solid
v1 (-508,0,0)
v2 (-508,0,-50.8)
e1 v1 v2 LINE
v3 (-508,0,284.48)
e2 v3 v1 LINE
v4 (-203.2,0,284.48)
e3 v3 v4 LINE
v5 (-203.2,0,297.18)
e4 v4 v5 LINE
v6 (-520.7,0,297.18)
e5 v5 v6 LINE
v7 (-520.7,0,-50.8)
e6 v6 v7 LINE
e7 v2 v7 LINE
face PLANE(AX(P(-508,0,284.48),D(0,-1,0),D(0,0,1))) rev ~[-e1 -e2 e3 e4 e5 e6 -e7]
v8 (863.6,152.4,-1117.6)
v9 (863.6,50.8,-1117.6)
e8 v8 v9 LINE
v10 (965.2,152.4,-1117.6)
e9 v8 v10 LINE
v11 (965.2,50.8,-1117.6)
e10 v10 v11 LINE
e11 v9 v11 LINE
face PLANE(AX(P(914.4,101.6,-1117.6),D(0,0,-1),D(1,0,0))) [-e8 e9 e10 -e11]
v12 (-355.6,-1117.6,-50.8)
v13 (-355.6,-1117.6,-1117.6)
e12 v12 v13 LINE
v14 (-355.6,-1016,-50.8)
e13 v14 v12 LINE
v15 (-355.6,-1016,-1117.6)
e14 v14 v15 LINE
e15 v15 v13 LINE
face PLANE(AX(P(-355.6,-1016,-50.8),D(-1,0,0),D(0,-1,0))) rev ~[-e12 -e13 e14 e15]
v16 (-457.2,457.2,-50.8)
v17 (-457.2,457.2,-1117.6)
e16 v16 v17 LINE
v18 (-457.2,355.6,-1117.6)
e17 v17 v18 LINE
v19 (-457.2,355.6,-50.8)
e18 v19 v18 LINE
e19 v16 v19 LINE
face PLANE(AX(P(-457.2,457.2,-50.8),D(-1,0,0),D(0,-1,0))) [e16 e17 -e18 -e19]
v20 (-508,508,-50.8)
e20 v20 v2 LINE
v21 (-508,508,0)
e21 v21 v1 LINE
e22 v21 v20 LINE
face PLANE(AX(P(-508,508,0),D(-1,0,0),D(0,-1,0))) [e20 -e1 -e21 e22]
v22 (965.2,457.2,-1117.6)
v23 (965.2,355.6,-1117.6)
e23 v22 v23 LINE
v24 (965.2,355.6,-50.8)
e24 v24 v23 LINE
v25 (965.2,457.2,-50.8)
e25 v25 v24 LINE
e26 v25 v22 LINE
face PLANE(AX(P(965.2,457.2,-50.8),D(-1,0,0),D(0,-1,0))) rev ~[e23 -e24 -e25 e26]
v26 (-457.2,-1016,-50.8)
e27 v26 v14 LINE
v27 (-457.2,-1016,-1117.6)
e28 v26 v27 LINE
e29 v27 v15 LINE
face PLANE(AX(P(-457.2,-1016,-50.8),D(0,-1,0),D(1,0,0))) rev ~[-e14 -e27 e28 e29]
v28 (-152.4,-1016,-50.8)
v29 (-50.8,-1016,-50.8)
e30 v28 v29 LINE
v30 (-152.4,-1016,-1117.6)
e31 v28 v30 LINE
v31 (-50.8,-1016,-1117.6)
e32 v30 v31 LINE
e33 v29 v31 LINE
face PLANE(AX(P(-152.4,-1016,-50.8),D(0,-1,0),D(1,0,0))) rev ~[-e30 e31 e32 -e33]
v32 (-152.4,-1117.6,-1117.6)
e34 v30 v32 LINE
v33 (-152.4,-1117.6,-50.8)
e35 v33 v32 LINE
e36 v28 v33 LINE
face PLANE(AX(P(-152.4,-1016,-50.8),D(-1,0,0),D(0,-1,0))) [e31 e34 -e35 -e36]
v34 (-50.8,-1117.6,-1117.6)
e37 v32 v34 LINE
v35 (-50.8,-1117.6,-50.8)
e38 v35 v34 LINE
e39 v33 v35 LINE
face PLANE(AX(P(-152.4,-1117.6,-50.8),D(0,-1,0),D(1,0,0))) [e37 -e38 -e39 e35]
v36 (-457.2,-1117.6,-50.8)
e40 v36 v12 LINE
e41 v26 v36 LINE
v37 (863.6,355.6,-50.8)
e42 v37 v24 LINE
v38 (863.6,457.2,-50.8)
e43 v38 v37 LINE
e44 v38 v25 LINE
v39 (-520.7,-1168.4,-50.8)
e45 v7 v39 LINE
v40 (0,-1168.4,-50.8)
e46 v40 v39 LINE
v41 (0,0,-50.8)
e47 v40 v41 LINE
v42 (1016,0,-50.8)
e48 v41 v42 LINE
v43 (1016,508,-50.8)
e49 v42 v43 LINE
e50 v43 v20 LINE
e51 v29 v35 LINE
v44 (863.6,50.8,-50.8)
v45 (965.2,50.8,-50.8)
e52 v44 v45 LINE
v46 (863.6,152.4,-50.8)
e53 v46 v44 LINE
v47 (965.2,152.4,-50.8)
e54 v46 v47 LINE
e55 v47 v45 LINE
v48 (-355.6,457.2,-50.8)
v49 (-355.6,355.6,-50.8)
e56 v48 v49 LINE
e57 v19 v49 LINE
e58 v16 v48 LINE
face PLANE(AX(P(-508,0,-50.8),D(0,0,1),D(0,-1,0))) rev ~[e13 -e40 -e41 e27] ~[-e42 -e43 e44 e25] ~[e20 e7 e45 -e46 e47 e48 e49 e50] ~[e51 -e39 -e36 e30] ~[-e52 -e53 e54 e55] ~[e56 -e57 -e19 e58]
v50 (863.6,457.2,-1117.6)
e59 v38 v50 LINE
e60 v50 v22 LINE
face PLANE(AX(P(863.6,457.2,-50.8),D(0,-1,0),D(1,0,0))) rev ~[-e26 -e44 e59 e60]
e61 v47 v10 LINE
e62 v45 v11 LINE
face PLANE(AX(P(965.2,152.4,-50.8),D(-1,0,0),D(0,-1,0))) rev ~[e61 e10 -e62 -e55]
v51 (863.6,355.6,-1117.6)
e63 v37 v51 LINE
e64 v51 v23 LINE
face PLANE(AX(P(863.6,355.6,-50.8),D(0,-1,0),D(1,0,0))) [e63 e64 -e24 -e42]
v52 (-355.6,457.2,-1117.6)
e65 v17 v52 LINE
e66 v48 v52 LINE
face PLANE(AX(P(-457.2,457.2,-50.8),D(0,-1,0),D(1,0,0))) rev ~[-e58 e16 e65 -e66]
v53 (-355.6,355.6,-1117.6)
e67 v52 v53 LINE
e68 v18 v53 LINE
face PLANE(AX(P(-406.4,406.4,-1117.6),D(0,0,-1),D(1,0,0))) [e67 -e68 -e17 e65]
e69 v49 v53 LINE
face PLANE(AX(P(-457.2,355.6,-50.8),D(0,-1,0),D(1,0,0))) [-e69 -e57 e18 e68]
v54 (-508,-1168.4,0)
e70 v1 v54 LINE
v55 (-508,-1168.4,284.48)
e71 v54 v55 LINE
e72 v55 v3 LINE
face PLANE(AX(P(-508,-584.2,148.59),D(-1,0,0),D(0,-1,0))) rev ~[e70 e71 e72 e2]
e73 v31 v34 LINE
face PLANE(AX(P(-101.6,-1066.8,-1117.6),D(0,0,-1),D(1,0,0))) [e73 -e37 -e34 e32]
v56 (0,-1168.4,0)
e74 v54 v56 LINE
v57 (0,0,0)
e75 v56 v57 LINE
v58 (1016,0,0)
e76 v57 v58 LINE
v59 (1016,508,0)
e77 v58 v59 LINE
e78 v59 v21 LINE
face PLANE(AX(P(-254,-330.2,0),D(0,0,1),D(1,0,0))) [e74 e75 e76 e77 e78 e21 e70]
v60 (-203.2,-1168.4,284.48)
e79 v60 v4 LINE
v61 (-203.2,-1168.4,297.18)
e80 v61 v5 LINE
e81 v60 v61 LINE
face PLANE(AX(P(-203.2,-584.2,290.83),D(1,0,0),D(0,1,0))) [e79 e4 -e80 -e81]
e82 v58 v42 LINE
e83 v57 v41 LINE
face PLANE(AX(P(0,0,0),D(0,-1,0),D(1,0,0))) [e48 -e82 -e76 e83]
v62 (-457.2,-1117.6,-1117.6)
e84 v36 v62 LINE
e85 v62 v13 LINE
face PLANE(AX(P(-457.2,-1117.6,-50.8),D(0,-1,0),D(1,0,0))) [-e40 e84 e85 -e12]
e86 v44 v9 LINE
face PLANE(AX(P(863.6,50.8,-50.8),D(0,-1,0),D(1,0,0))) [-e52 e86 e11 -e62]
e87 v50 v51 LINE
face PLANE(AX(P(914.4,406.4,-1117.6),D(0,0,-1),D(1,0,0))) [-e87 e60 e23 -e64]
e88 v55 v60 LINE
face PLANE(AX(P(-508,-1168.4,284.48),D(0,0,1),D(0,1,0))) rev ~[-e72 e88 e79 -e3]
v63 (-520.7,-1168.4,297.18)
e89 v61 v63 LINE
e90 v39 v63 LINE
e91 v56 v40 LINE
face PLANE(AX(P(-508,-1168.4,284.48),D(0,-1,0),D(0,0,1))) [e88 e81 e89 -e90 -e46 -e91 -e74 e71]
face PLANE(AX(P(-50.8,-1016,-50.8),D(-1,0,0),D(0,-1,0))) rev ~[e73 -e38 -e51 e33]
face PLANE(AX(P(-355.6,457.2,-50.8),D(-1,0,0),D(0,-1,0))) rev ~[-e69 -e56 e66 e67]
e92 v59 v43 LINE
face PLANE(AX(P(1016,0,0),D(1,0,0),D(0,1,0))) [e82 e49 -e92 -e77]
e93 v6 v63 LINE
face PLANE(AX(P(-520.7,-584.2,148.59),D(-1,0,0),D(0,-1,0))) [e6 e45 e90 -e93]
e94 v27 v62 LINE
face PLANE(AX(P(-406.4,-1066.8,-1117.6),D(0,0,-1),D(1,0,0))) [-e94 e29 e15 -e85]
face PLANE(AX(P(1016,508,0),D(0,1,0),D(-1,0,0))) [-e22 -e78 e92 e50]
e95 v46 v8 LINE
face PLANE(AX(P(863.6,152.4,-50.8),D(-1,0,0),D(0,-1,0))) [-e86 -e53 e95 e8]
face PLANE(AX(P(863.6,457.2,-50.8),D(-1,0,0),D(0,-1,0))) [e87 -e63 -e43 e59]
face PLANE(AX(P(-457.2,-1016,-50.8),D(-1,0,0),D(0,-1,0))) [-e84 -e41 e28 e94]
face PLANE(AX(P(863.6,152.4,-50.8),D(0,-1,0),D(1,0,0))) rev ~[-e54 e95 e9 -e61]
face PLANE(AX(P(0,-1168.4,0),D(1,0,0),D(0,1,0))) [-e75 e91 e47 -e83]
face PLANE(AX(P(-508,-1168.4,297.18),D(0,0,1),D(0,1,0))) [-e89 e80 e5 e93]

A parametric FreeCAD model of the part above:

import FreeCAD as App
import Part
import Sketcher
Q = App.Units.Quantity


def add_polygon(sketch, points):
    """Adds a closed chain of lines whose ends are joined by coincident constraints."""
    first, n = sketch.GeometryCount, len(points)
    for a, b in zip(points, points[1:] + points[:1]):
        sketch.addGeometry(Part.LineSegment(App.Vector(*a, 0), App.Vector(*b, 0)), False)
    for i in range(n):
        sketch.addConstraint(Sketcher.Constraint("Coincident", first + i, 2, first + (i + 1) % n, 1))

doc = App.newDocument("Part")
body = doc.addObject("PartDesign::Body", "Body")

# Sketch on XY plane
sketch1 = body.newObject("Sketcher::SketchObject", "Sketch")
sketch1.AttachmentSupport = (doc.getObject("XY_Plane"), [""])
sketch1.MapMode = "FlatFace"
add_polygon(sketch1, [(-508, 508), (-508, -1168), (0, -1168), (0, 0), (1016, 0), (1016, 508)])  # lines 0-5
sketch1.addConstraint([
    Sketcher.Constraint("Vertical", 0),
    Sketcher.Constraint("Horizontal", 1),
    Sketcher.Constraint("Vertical", 2),
    Sketcher.Constraint("Horizontal", 3),
    Sketcher.Constraint("Vertical", 4),
    Sketcher.Constraint("Horizontal", 5),
    Sketcher.Constraint("Coincident", 2, 2, -1, 1),
    Sketcher.Constraint("Equal", 1, 4),
    Sketcher.Constraint("DistanceX", 1, 1, 1, 2, Q("20 in")),
    Sketcher.Constraint("DistanceX", 3, 1, 3, 2, Q("40 in")),
    Sketcher.Constraint("DistanceY", 0, 2, 0, 1, Q("66 in")),
])
pad1 = body.newObject("PartDesign::Pad", "Pad")
pad1.Profile = sketch1
pad1.Length = Q("2 in")
pad1.Reversed = True

# Sketch on XY plane
sketch2 = body.newObject("Sketcher::SketchObject", "Sketch001")
sketch2.AttachmentSupport = (doc.getObject("XY_Plane"), [""])
sketch2.MapMode = "FlatFace"
sketch2.AttachmentOffset = App.Placement(App.Vector(0, 0, -2 * 25.4), App.Rotation())
add_polygon(sketch2, [(-152, -1118), (-152, -1016), (-51, -1016), (-51, -1118)])  # lines 0-3
add_polygon(sketch2, [(-457, -1118), (-457, -1016), (-356, -1016), (-356, -1118)])  # lines 4-7
add_polygon(sketch2, [(-457, 356), (-457, 457), (-356, 457), (-356, 356)])  # lines 8-11
add_polygon(sketch2, [(864, 51), (864, 152), (965, 152), (965, 51)])  # lines 12-15
add_polygon(sketch2, [(864, 356), (864, 457), (965, 457), (965, 356)])  # lines 16-19
sketch2.addConstraint([
    Sketcher.Constraint("Vertical", 0),
    Sketcher.Constraint("Horizontal", 1),
    Sketcher.Constraint("Vertical", 2),
    Sketcher.Constraint("Horizontal", 3),
    Sketcher.Constraint("Vertical", 4),
    Sketcher.Constraint("Horizontal", 5),
    Sketcher.Constraint("Vertical", 6),
    Sketcher.Constraint("Horizontal", 7),
    Sketcher.Constraint("Vertical", 8),
    Sketcher.Constraint("Horizontal", 9),
    Sketcher.Constraint("Vertical", 10),
    Sketcher.Constraint("Horizontal", 11),
    Sketcher.Constraint("Vertical", 12),
    Sketcher.Constraint("Horizontal", 13),
    Sketcher.Constraint("Vertical", 14),
    Sketcher.Constraint("Horizontal", 15),
    Sketcher.Constraint("Vertical", 16),
    Sketcher.Constraint("Horizontal", 17),
    Sketcher.Constraint("Vertical", 18),
    Sketcher.Constraint("Horizontal", 19),
    Sketcher.Constraint("Horizontal", 1, 2, 4, 2),
    Sketcher.Constraint("Horizontal", 3, 2, 6, 2),
    Sketcher.Constraint("Horizontal", 9, 2, 16, 2),
    Sketcher.Constraint("Horizontal", 11, 2, 18, 2),
    Sketcher.Constraint("Vertical", 7, 2, 8, 2),
    Sketcher.Constraint("Vertical", 6, 2, 9, 2),
    Sketcher.Constraint("Vertical", 15, 2, 16, 2),
    Sketcher.Constraint("Vertical", 14, 2, 17, 2),
    Sketcher.Constraint("Equal", 3, 5),
    Sketcher.Constraint("Equal", 11, 13),
    Sketcher.Constraint("Equal", 19, 0),
    Sketcher.Constraint("Equal", 6, 8),
    Sketcher.Constraint("Equal", 10, 12),
    Sketcher.Constraint("DistanceX", 1, 1, 1, 2, Q("4 in")),
    Sketcher.Constraint("DistanceX", 0, 2, -1, 1, Q("6 in")),
    Sketcher.Constraint("DistanceY", 0, 2, -1, 1, Q("40 in")),
    Sketcher.Constraint("DistanceX", 4, 2, -1, 1, Q("18 in")),
    Sketcher.Constraint("DistanceY", -1, 1, 8, 2, Q("18 in")),
    Sketcher.Constraint("DistanceX", -1, 1, 12, 2, Q("34 in")),
    Sketcher.Constraint("DistanceY", -1, 1, 12, 2, Q("6 in")),
])
pad2 = body.newObject("PartDesign::Pad", "Pad001")
pad2.Profile = sketch2
pad2.Length = Q("42 in")
pad2.Reversed = True

# Sketch on YZ plane
sketch3 = body.newObject("Sketcher::SketchObject", "Sketch002")
sketch3.AttachmentSupport = (doc.getObject("YZ_Plane"), [""])
sketch3.MapMode = "FlatFace"
sketch3.AttachmentOffset = App.Placement(App.Vector(0, 0, -20 * 25.4), App.Rotation())
add_polygon(sketch3, [(0, 297), (0, -51), (-1168, -51), (-1168, 297)])  # lines 0-3
sketch3.addConstraint([
    Sketcher.Constraint("Vertical", 0),
    Sketcher.Constraint("Horizontal", 1),
    Sketcher.Constraint("Vertical", 2),
    Sketcher.Constraint("Horizontal", 3),
    Sketcher.Constraint("PointOnObject", 0, 2, -2),
    Sketcher.Constraint("DistanceX", 1, 2, 1, 1, Q("46 in")),
    Sketcher.Constraint("DistanceY", 0, 2, 0, 1, Q("13.7 in")),
    Sketcher.Constraint("DistanceY", 0, 2, -1, 1, Q("2 in")),
])
pad3 = body.newObject("PartDesign::Pad", "Pad002")
pad3.Profile = sketch3
pad3.Length = Q("0.5 in")
pad3.Reversed = True

# Sketch on YZ plane
sketch4 = body.newObject("Sketcher::SketchObject", "Sketch003")
sketch4.AttachmentSupport = (doc.getObject("YZ_Plane"), [""])
sketch4.MapMode = "FlatFace"
sketch4.AttachmentOffset = App.Placement(App.Vector(0, 0, -20 * 25.4), App.Rotation())
add_polygon(sketch4, [(-1168, 297), (-1168, 284), (0, 284), (0, 297)])  # lines 0-3
sketch4.addConstraint([
    Sketcher.Constraint("Vertical", 0),
    Sketcher.Constraint("Horizontal", 1),
    Sketcher.Constraint("Vertical", 2),
    Sketcher.Constraint("Horizontal", 3),
    Sketcher.Constraint("PointOnObject", 1, 2, -2),
    Sketcher.Constraint("DistanceX", 1, 1, 1, 2, Q("46 in")),
    Sketcher.Constraint("DistanceY", 0, 2, 0, 1, Q("0.5 in")),
    Sketcher.Constraint("DistanceY", -1, 1, 0, 2, Q("11.2 in")),
])
pad4 = body.newObject("PartDesign::Pad", "Pad003")
pad4.Profile = sketch4
pad4.Length = Q("12 in")

doc.recompute()
